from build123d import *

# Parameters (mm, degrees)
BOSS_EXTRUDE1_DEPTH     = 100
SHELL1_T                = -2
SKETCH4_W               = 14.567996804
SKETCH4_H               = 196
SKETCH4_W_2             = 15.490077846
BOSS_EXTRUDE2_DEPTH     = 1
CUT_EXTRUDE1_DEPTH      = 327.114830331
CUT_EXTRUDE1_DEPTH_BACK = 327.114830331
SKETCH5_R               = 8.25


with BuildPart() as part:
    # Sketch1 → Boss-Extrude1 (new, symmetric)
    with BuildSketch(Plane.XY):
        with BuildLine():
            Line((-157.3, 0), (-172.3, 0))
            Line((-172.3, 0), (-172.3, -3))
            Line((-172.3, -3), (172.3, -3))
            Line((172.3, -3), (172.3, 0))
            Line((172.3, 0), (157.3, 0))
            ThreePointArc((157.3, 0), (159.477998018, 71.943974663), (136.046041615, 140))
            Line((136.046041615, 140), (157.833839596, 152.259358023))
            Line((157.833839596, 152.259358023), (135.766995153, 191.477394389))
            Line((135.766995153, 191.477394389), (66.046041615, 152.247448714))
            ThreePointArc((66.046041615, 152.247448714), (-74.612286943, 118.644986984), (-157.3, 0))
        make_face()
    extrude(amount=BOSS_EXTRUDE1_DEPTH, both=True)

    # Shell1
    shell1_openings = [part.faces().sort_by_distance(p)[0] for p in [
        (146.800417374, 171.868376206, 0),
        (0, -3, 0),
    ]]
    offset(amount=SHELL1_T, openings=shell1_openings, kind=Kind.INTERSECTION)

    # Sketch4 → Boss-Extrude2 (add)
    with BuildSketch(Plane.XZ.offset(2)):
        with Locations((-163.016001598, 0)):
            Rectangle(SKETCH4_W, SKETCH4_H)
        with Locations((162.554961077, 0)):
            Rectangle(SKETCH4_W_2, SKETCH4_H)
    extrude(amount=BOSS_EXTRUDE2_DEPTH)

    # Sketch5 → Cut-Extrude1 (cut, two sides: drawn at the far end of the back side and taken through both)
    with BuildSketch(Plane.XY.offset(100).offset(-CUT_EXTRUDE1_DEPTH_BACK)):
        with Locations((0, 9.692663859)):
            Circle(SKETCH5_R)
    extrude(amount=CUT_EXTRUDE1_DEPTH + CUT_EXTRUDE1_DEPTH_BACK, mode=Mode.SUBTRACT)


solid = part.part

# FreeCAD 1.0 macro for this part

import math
import FreeCAD as App
import Part
import Sketcher
from FreeCAD import Vector
Q = App.Units.Quantity


def faces_at(feature, points):
    """Names of the faces that lie closest to the given points."""
    faces = feature.Shape.Faces
    near = lambda p: min(range(len(faces)), key=lambda i: faces[i].distToShape(Part.Vertex(*p))[0])
    return sorted({f"Face{near(p) + 1}" for p in points})

doc = App.newDocument("Part")
body = doc.addObject("PartDesign::Body", "Body")

sketch1 = doc.addObject("Sketcher::SketchObject", "Sketch")
body.addObject(sketch1)
sketch1.AttachmentSupport = (doc.XY_Plane, [""])
sketch1.MapMode = "FlatFace"
sketch1.addGeometry(Part.LineSegment(Vector(-157.3, 0, 0), Vector(-172.3, 0, 0)), False)
sketch1.addGeometry(Part.LineSegment(Vector(-172.3, 0, 0), Vector(-172.3, -3, 0)), False)
sketch1.addGeometry(Part.LineSegment(Vector(-172.3, -3, 0), Vector(172.3, -3, 0)), False)
sketch1.addGeometry(Part.LineSegment(Vector(172.3, -3, 0), Vector(172.3, 0, 0)), False)
sketch1.addGeometry(Part.LineSegment(Vector(172.3, 0, 0), Vector(157.3, 0, 0)), False)
sketch1.addGeometry(Part.ArcOfCircle(Part.Circle(Vector(-38.3, 41.9, 0), Vector(0, 0, 1), 200), math.radians(-12), math.radians(29)), False)
sketch1.addGeometry(Part.LineSegment(Vector(136, 140, 0), Vector(157.8, 152.3, 0)), False)
sketch1.addGeometry(Part.LineSegment(Vector(157.8, 152.3, 0), Vector(135.8, 191.5, 0)), False)
sketch1.addGeometry(Part.LineSegment(Vector(135.8, 191.5, 0), Vector(66, 152.2, 0)), False)
sketch1.addGeometry(Part.ArcOfCircle(Part.Circle(Vector(39.8, -49.3, 0), Vector(0, 0, 1), 203.2), math.radians(83), math.radians(166)), False)
sketch1.addConstraint(Sketcher.Constraint("Coincident", 0, 2, 1, 1))
sketch1.addConstraint(Sketcher.Constraint("Coincident", 1, 2, 2, 1))
sketch1.addConstraint(Sketcher.Constraint("Coincident", 2, 2, 3, 1))
sketch1.addConstraint(Sketcher.Constraint("Coincident", 3, 2, 4, 1))
sketch1.addConstraint(Sketcher.Constraint("Coincident", 4, 2, 5, 1))
sketch1.addConstraint(Sketcher.Constraint("Coincident", 5, 2, 6, 1))
sketch1.addConstraint(Sketcher.Constraint("Coincident", 6, 2, 7, 1))
sketch1.addConstraint(Sketcher.Constraint("Coincident", 7, 2, 8, 1))
sketch1.addConstraint(Sketcher.Constraint("Coincident", 8, 2, 9, 1))
sketch1.addConstraint(Sketcher.Constraint("Coincident", 9, 2, 0, 1))
sketch1.addConstraint(Sketcher.Constraint("Horizontal", 0))
sketch1.addConstraint(Sketcher.Constraint("Vertical", 1))
sketch1.addConstraint(Sketcher.Constraint("Horizontal", 2))
sketch1.addConstraint(Sketcher.Constraint("Vertical", 3))
sketch1.addConstraint(Sketcher.Constraint("Horizontal", 4))
sketch1.addConstraint(Sketcher.Constraint("Symmetric", 0, 2, 3, 2, -1, 1))
sketch1.addConstraint(Sketcher.Constraint("Symmetric", 4, 2, 9, 2, -2))
sketch1.addConstraint(Sketcher.Constraint("Perpendicular", 6, 7))
sketch1.addConstraint(Sketcher.Constraint("Perpendicular", 7, 8))
sketch1.addConstraint(Sketcher.Constraint("Radius", 5, Q("200 mm")))
sketch1.addConstraint(Sketcher.Constraint("DistanceX", 0, 2, 0, 1, Q("15 mm")))
sketch1.addConstraint(Sketcher.Constraint("DistanceY", 1, 2, 1, 1, Q("3 mm")))
sketch1.addConstraint(Sketcher.Constraint("Distance", 6, Q("25 mm")))
sketch1.addConstraint(Sketcher.Constraint("Distance", 7, Q("45 mm")))
sketch1.addConstraint(Sketcher.Constraint("Distance", 8, Q("80 mm")))
sketch1.addConstraint(Sketcher.Constraint("DistanceX", 2, 1, 2, 2, Q("344.6 mm")))
sketch1.addConstraint(Sketcher.Constraint("DistanceY", -1, 1, 5, 2, Q("140 mm")))
sketch1.addConstraint(Sketcher.Constraint("Radius", 9, Q("203.202465 mm")))
sketch1.addConstraint(Sketcher.Constraint("DistanceY", 9, 3, -1, 1, Q("49.258321 mm")))
sketch1.addConstraint(Sketcher.Constraint("DistanceX", -1, 1, 5, 2, Q("136.046042 mm")))
pad1 = doc.addObject("PartDesign::Pad", "Pad")
body.addObject(pad1)
pad1.Profile = sketch1
pad1.Length = 200
pad1.Midplane = True
doc.recompute()

thickness = doc.addObject("PartDesign::Thickness", "Thickness")
body.addObject(thickness)
thickness.Base = (pad1, faces_at(pad1, [(146.8, 171.868, 0), (0, -3, 0)]))
thickness.Value = 2
thickness.Reversed = True
thickness.Join = "Intersection"

sketch2 = doc.addObject("Sketcher::SketchObject", "Sketch001")
body.addObject(sketch2)
sketch2.AttachmentSupport = (doc.XZ_Plane, [""])
sketch2.MapMode = "FlatFace"
sketch2.AttachmentOffset = App.Placement(Vector(0, 0, 2), App.Rotation())
sketch2.addGeometry(Part.LineSegment(Vector(-170, 98, 0), Vector(-170, -98, 0)), False)
sketch2.addGeometry(Part.LineSegment(Vector(-170, -98, 0), Vector(-156, -98, 0)), False)
sketch2.addGeometry(Part.LineSegment(Vector(-156, -98, 0), Vector(-156, 98, 0)), False)
sketch2.addGeometry(Part.LineSegment(Vector(-156, 98, 0), Vector(-170, 98, 0)), False)
sketch2.addGeometry(Part.LineSegment(Vector(155, 98, 0), Vector(155, -98, 0)), False)
sketch2.addGeometry(Part.LineSegment(Vector(155, -98, 0), Vector(170, -98, 0)), False)
sketch2.addGeometry(Part.LineSegment(Vector(170, -98, 0), Vector(170, 98, 0)), False)
sketch2.addGeometry(Part.LineSegment(Vector(170, 98, 0), Vector(155, 98, 0)), False)
sketch2.addConstraint(Sketcher.Constraint("Coincident", 0, 2, 1, 1))
sketch2.addConstraint(Sketcher.Constraint("Coincident", 1, 2, 2, 1))
sketch2.addConstraint(Sketcher.Constraint("Coincident", 2, 2, 3, 1))
sketch2.addConstraint(Sketcher.Constraint("Coincident", 3, 2, 0, 1))
sketch2.addConstraint(Sketcher.Constraint("Coincident", 4, 2, 5, 1))
sketch2.addConstraint(Sketcher.Constraint("Coincident", 5, 2, 6, 1))
sketch2.addConstraint(Sketcher.Constraint("Coincident", 6, 2, 7, 1))
sketch2.addConstraint(Sketcher.Constraint("Coincident", 7, 2, 4, 1))
sketch2.addConstraint(Sketcher.Constraint("Vertical", 0))
sketch2.addConstraint(Sketcher.Constraint("Horizontal", 1))
sketch2.addConstraint(Sketcher.Constraint("Vertical", 2))
sketch2.addConstraint(Sketcher.Constraint("Horizontal", 3))
sketch2.addConstraint(Sketcher.Constraint("Vertical", 4))
sketch2.addConstraint(Sketcher.Constraint("Horizontal", 5))
sketch2.addConstraint(Sketcher.Constraint("Vertical", 6))
sketch2.addConstraint(Sketcher.Constraint("Horizontal", 7))
sketch2.addConstraint(Sketcher.Constraint("Symmetric", 3, 2, 5, 2, -1, 1))
sketch2.addConstraint(Sketcher.Constraint("Horizontal", 1, 2, 4, 2))
sketch2.addConstraint(Sketcher.Constraint("Horizontal", 3, 2, 6, 2))
sketch2.addConstraint(Sketcher.Constraint("DistanceY", 0, 2, 0, 1, Q("196 mm")))
sketch2.addConstraint(Sketcher.Constraint("DistanceX", 0, 2, -1, 1, Q("170.3 mm")))
sketch2.addConstraint(Sketcher.Constraint("DistanceX", 1, 1, 1, 2, Q("14.567997 mm")))
sketch2.addConstraint(Sketcher.Constraint("DistanceX", 5, 1, 5, 2, Q("15.490078 mm")))
pad2 = doc.addObject("PartDesign::Pad", "Pad001")
body.addObject(pad2)
pad2.Profile = sketch2
pad2.Length = 1

sketch3 = doc.addObject("Sketcher::SketchObject", "Sketch002")
body.addObject(sketch3)
sketch3.AttachmentSupport = (doc.XY_Plane, [""])
sketch3.MapMode = "FlatFace"
sketch3.AttachmentOffset = App.Placement(Vector(0, 0, 100), App.Rotation())
sketch3.addGeometry(Part.Circle(Vector(0, 10, 0), Vector(0, 0, 1), 8), False)
sketch3.addConstraint(Sketcher.Constraint("PointOnObject", 0, 3, -2))
sketch3.addConstraint(Sketcher.Constraint("Diameter", 0, Q("16.5 mm")))
sketch3.addConstraint(Sketcher.Constraint("DistanceY", -1, 1, 0, 3, Q("9.692664 mm")))
pocket1 = doc.addObject("PartDesign::Pocket", "Pocket")
body.addObject(pocket1)
pocket1.Profile = sketch3
pocket1.Type = "ThroughAll"
pocket1.Midplane = True

doc.recompute()
